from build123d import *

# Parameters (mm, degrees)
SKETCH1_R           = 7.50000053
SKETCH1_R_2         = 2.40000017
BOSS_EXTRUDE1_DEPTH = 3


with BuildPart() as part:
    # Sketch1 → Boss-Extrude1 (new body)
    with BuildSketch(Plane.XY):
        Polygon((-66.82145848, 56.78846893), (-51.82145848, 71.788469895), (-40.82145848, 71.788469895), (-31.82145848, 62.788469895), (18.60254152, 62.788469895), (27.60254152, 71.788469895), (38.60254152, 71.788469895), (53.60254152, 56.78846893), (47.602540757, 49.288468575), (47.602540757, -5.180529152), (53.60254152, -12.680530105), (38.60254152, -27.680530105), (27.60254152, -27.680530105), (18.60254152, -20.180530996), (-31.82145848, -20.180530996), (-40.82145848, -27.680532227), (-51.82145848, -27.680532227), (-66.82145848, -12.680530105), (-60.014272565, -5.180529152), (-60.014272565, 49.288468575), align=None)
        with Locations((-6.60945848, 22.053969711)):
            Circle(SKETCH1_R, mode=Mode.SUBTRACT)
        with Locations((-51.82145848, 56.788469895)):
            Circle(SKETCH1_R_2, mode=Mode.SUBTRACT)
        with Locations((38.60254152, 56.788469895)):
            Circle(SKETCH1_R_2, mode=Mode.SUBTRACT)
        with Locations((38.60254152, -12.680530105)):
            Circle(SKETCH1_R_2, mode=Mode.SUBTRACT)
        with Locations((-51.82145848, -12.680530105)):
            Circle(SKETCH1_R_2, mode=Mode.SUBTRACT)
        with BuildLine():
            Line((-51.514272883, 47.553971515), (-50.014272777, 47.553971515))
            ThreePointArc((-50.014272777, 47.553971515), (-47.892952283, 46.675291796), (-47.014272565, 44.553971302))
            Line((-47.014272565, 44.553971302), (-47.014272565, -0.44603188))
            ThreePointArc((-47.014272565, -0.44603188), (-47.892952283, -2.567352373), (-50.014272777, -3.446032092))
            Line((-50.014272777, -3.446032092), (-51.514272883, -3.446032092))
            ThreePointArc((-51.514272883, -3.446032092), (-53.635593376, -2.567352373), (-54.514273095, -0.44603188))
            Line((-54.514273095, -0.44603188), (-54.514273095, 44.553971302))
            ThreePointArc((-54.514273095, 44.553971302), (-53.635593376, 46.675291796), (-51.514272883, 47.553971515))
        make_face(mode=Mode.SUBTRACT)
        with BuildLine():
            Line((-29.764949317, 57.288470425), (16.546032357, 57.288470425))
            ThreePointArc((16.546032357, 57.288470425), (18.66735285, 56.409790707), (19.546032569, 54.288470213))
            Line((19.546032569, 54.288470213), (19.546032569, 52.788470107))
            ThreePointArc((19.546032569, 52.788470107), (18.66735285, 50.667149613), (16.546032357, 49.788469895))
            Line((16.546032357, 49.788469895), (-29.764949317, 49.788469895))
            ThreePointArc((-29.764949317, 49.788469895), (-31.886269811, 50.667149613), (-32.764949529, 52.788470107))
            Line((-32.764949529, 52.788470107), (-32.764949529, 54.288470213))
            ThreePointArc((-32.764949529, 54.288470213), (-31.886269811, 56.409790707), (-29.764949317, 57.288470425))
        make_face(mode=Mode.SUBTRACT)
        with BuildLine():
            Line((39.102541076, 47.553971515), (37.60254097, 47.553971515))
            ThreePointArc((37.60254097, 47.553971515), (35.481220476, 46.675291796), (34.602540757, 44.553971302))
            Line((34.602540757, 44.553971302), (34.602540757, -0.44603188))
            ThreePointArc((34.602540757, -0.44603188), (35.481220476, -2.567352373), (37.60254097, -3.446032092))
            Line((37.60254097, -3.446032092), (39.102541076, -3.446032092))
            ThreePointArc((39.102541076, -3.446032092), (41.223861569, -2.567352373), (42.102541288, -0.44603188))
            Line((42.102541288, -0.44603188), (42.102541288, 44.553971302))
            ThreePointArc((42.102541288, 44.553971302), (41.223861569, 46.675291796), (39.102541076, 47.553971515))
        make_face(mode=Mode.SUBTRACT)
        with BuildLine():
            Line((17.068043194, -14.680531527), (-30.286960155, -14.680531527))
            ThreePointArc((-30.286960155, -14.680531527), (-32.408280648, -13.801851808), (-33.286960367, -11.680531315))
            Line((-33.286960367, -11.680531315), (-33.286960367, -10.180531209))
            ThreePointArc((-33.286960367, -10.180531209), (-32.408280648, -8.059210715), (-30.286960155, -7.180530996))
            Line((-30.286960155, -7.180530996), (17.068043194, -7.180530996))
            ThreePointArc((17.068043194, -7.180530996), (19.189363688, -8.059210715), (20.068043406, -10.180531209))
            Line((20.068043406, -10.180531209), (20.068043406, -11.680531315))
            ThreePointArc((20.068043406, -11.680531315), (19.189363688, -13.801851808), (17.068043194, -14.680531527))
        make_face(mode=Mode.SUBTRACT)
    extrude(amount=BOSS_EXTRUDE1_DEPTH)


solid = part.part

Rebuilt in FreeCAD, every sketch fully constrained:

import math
import FreeCAD as App
import Part
import Sketcher
from FreeCAD import Vector
Q = App.Units.Quantity


def add_polygon(sketch, points):
    """Adds a closed chain of lines whose ends are joined by coincident constraints."""
    first, n = sketch.GeometryCount, len(points)
    for a, b in zip(points, points[1:] + points[:1]):
        sketch.addGeometry(Part.LineSegment(App.Vector(*a, 0), App.Vector(*b, 0)), False)
    for i in range(n):
        sketch.addConstraint(Sketcher.Constraint("Coincident", first + i, 2, first + (i + 1) % n, 1))

doc = App.newDocument("Part")
body = doc.addObject("PartDesign::Body", "Body")

sketch1 = body.newObject("Sketcher::SketchObject", "Sketch")
sketch1.AttachmentSupport = (doc.getObject("XY_Plane"), [""])
sketch1.MapMode = "FlatFace"
add_polygon(sketch1, [(-51.8, 71.8), (-66.8, 56.8), (-60, 49.3), (-60, -5.2), (-66.8, -12.7), (-51.8, -27.7), (-40.8, -27.7), (-31.8, -20.2), (18.6, -20.2), (27.6, -27.7), (38.6, -27.7), (53.6, -12.7), (47.6, -5.2), (47.6, 49.3), (53.6, 56.8), (38.6, 71.8), (27.6, 71.8), (18.6, 62.8), (-31.8, 62.8), (-40.8, 71.8)])
sketch1.addGeometry(Part.Circle(Vector(38.6, -12.7, 0), Vector(0, 0, 1), 2.4), False)
sketch1.addGeometry(Part.ArcOfCircle(Part.Circle(Vector(39.1, 44.6, 0), Vector(0, 0, 1), 3), math.radians(0), math.radians(90)), False)
sketch1.addGeometry(Part.LineSegment(Vector(42.1, 44.6, 0), Vector(42.1, -0.4, 0)), False)
sketch1.addGeometry(Part.ArcOfCircle(Part.Circle(Vector(39.1, -0.4, 0), Vector(0, 0, 1), 3), math.radians(-90), math.radians(0)), False)
sketch1.addGeometry(Part.LineSegment(Vector(39.1, -3.4, 0), Vector(37.6, -3.4, 0)), False)
sketch1.addGeometry(Part.ArcOfCircle(Part.Circle(Vector(37.6, -0.4, 0), Vector(0, 0, 1), 3), math.radians(-180), math.radians(-90)), False)
sketch1.addGeometry(Part.LineSegment(Vector(34.6, -0.4, 0), Vector(34.6, 44.6, 0)), False)
sketch1.addGeometry(Part.ArcOfCircle(Part.Circle(Vector(37.6, 44.6, 0), Vector(0, 0, 1), 3), math.radians(90), math.radians(180)), False)
sketch1.addGeometry(Part.LineSegment(Vector(37.6, 47.6, 0), Vector(39.1, 47.6, 0)), False)
sketch1.addGeometry(Part.LineSegment(Vector(17.1, -14.7, 0), Vector(-30.3, -14.7, 0)), False)
sketch1.addGeometry(Part.ArcOfCircle(Part.Circle(Vector(-30.3, -11.7, 0), Vector(0, 0, 1), 3), math.radians(-180), math.radians(-90)), False)
sketch1.addGeometry(Part.LineSegment(Vector(-33.3, -11.7, 0), Vector(-33.3, -10.2, 0)), False)
sketch1.addGeometry(Part.ArcOfCircle(Part.Circle(Vector(-30.3, -10.2, 0), Vector(0, 0, 1), 3), math.radians(90), math.radians(180)), False)
sketch1.addGeometry(Part.LineSegment(Vector(-30.3, -7.2, 0), Vector(17.1, -7.2, 0)), False)
sketch1.addGeometry(Part.ArcOfCircle(Part.Circle(Vector(17.1, -10.2, 0), Vector(0, 0, 1), 3), math.radians(0), math.radians(90)), False)
sketch1.addGeometry(Part.LineSegment(Vector(20.1, -10.2, 0), Vector(20.1, -11.7, 0)), False)
sketch1.addGeometry(Part.ArcOfCircle(Part.Circle(Vector(17.1, -11.7, 0), Vector(0, 0, 1), 3), math.radians(-90), math.radians(0)), False)
sketch1.addGeometry(Part.Circle(Vector(-51.8, -12.7, 0), Vector(0, 0, 1), 2.4), False)
sketch1.addGeometry(Part.Circle(Vector(-6.6, 22.1, 0), Vector(0, 0, 1), 7.5), False)
sketch1.addGeometry(Part.LineSegment(Vector(-51.5, 47.6, 0), Vector(-50, 47.6, 0)), False)
sketch1.addGeometry(Part.ArcOfCircle(Part.Circle(Vector(-50, 44.6, 0), Vector(0, 0, 1), 3), math.radians(0), math.radians(90)), False)
sketch1.addGeometry(Part.LineSegment(Vector(-47, 44.6, 0), Vector(-47, -0.4, 0)), False)
sketch1.addGeometry(Part.ArcOfCircle(Part.Circle(Vector(-50, -0.4, 0), Vector(0, 0, 1), 3), math.radians(-90), math.radians(0)), False)
sketch1.addGeometry(Part.LineSegment(Vector(-50, -3.4, 0), Vector(-51.5, -3.4, 0)), False)
sketch1.addGeometry(Part.ArcOfCircle(Part.Circle(Vector(-51.5, -0.4, 0), Vector(0, 0, 1), 3), math.radians(-180), math.radians(-90)), False)
sketch1.addGeometry(Part.LineSegment(Vector(-54.5, -0.4, 0), Vector(-54.5, 44.6, 0)), False)
sketch1.addGeometry(Part.ArcOfCircle(Part.Circle(Vector(-51.5, 44.6, 0), Vector(0, 0, 1), 3), math.radians(90), math.radians(180)), False)
sketch1.addGeometry(Part.Circle(Vector(38.6, 56.8, 0), Vector(0, 0, 1), 2.4), False)
sketch1.addGeometry(Part.LineSegment(Vector(-29.8, 57.3, 0), Vector(16.5, 57.3, 0)), False)
sketch1.addGeometry(Part.ArcOfCircle(Part.Circle(Vector(16.5, 54.3, 0), Vector(0, 0, 1), 3), math.radians(0), math.radians(90)), False)
sketch1.addGeometry(Part.LineSegment(Vector(19.5, 54.3, 0), Vector(19.5, 52.8, 0)), False)
sketch1.addGeometry(Part.ArcOfCircle(Part.Circle(Vector(16.5, 52.8, 0), Vector(0, 0, 1), 3), math.radians(-90), math.radians(0)), False)
sketch1.addGeometry(Part.LineSegment(Vector(16.5, 49.8, 0), Vector(-29.8, 49.8, 0)), False)
sketch1.addGeometry(Part.ArcOfCircle(Part.Circle(Vector(-29.8, 52.8, 0), Vector(0, 0, 1), 3), math.radians(180), math.radians(270)), False)
sketch1.addGeometry(Part.LineSegment(Vector(-32.8, 52.8, 0), Vector(-32.8, 54.3, 0)), False)
sketch1.addGeometry(Part.ArcOfCircle(Part.Circle(Vector(-29.8, 54.3, 0), Vector(0, 0, 1), 3), math.radians(90), math.radians(180)), False)
sketch1.addGeometry(Part.Circle(Vector(-51.8, 56.8, 0), Vector(0, 0, 1), 2.4), False)
sketch1.addConstraint(Sketcher.Constraint("Tangent", 21, 1, 22, 1))
sketch1.addConstraint(Sketcher.Constraint("Tangent", 22, 2, 23, 2))
sketch1.addConstraint(Sketcher.Constraint("Tangent", 23, 1, 24, 1))
sketch1.addConstraint(Sketcher.Constraint("Tangent", 24, 2, 25, 2))
sketch1.addConstraint(Sketcher.Constraint("Tangent", 25, 1, 26, 1))
sketch1.addConstraint(Sketcher.Constraint("Tangent", 26, 2, 27, 2))
sketch1.addConstraint(Sketcher.Constraint("Tangent", 27, 1, 28, 1))
sketch1.addConstraint(Sketcher.Constraint("Tangent", 28, 2, 21, 2))
sketch1.addConstraint(Sketcher.Constraint("Tangent", 29, 2, 30, 2))
sketch1.addConstraint(Sketcher.Constraint("Tangent", 30, 1, 31, 1))
sketch1.addConstraint(Sketcher.Constraint("Tangent", 31, 2, 32, 2))
sketch1.addConstraint(Sketcher.Constraint("Tangent", 32, 1, 33, 1))
sketch1.addConstraint(Sketcher.Constraint("Tangent", 33, 2, 34, 2))
sketch1.addConstraint(Sketcher.Constraint("Tangent", 34, 1, 35, 1))
sketch1.addConstraint(Sketcher.Constraint("Tangent", 35, 2, 36, 2))
sketch1.addConstraint(Sketcher.Constraint("Tangent", 36, 1, 29, 1))
sketch1.addConstraint(Sketcher.Constraint("Tangent", 39, 2, 40, 2))
sketch1.addConstraint(Sketcher.Constraint("Tangent", 40, 1, 41, 1))
sketch1.addConstraint(Sketcher.Constraint("Tangent", 41, 2, 42, 2))
sketch1.addConstraint(Sketcher.Constraint("Tangent", 42, 1, 43, 1))
sketch1.addConstraint(Sketcher.Constraint("Tangent", 43, 2, 44, 2))
sketch1.addConstraint(Sketcher.Constraint("Tangent", 44, 1, 45, 1))
sketch1.addConstraint(Sketcher.Constraint("Tangent", 45, 2, 46, 2))
sketch1.addConstraint(Sketcher.Constraint("Tangent", 46, 1, 39, 1))
sketch1.addConstraint(Sketcher.Constraint("Tangent", 48, 2, 49, 2))
sketch1.addConstraint(Sketcher.Constraint("Tangent", 49, 1, 50, 1))
sketch1.addConstraint(Sketcher.Constraint("Tangent", 50, 2, 51, 2))
sketch1.addConstraint(Sketcher.Constraint("Tangent", 51, 1, 52, 1))
sketch1.addConstraint(Sketcher.Constraint("Tangent", 52, 2, 53, 2))
sketch1.addConstraint(Sketcher.Constraint("Tangent", 53, 1, 54, 1))
sketch1.addConstraint(Sketcher.Constraint("Tangent", 54, 2, 55, 2))
sketch1.addConstraint(Sketcher.Constraint("Tangent", 55, 1, 48, 1))
sketch1.addConstraint(Sketcher.Constraint("Vertical", 2))
sketch1.addConstraint(Sketcher.Constraint("Horizontal", 5))
sketch1.addConstraint(Sketcher.Constraint("Horizontal", 7))
sketch1.addConstraint(Sketcher.Constraint("Horizontal", 9))
sketch1.addConstraint(Sketcher.Constraint("Vertical", 12))
sketch1.addConstraint(Sketcher.Constraint("Horizontal", 15))
sketch1.addConstraint(Sketcher.Constraint("Horizontal", 17))
sketch1.addConstraint(Sketcher.Constraint("Horizontal", 19))
sketch1.addConstraint(Sketcher.Constraint("Vertical", 22))
sketch1.addConstraint(Sketcher.Constraint("Horizontal", 24))
sketch1.addConstraint(Sketcher.Constraint("Vertical", 26))
sketch1.addConstraint(Sketcher.Constraint("Horizontal", 28))
sketch1.addConstraint(Sketcher.Constraint("Horizontal", 29))
sketch1.addConstraint(Sketcher.Constraint("Vertical", 31))
sketch1.addConstraint(Sketcher.Constraint("Horizontal", 33))
sketch1.addConstraint(Sketcher.Constraint("Vertical", 35))
sketch1.addConstraint(Sketcher.Constraint("Horizontal", 39))
sketch1.addConstraint(Sketcher.Constraint("Vertical", 41))
sketch1.addConstraint(Sketcher.Constraint("Horizontal", 43))
sketch1.addConstraint(Sketcher.Constraint("Vertical", 45))
sketch1.addConstraint(Sketcher.Constraint("Horizontal", 48))
sketch1.addConstraint(Sketcher.Constraint("Vertical", 50))
sketch1.addConstraint(Sketcher.Constraint("Horizontal", 52))
sketch1.addConstraint(Sketcher.Constraint("Vertical", 54))
sketch1.addConstraint(Sketcher.Constraint("Equal", 21, 23))
sketch1.addConstraint(Sketcher.Constraint("Equal", 23, 25))
sketch1.addConstraint(Sketcher.Constraint("Equal", 25, 27))
sketch1.addConstraint(Sketcher.Constraint("Equal", 27, 30))
sketch1.addConstraint(Sketcher.Constraint("Equal", 30, 32))
sketch1.addConstraint(Sketcher.Constraint("Equal", 32, 34))
sketch1.addConstraint(Sketcher.Constraint("Equal", 34, 36))
sketch1.addConstraint(Sketcher.Constraint("Equal", 20, 37))
sketch1.addConstraint(Sketcher.Constraint("Equal", 36, 40))
sketch1.addConstraint(Sketcher.Constraint("Equal", 40, 42))
sketch1.addConstraint(Sketcher.Constraint("Equal", 42, 44))
sketch1.addConstraint(Sketcher.Constraint("Equal", 44, 46))
sketch1.addConstraint(Sketcher.Constraint("Equal", 37, 47))
sketch1.addConstraint(Sketcher.Constraint("Equal", 46, 49))
sketch1.addConstraint(Sketcher.Constraint("Equal", 49, 51))
sketch1.addConstraint(Sketcher.Constraint("Equal", 51, 53))
sketch1.addConstraint(Sketcher.Constraint("Equal", 53, 55))
sketch1.addConstraint(Sketcher.Constraint("Equal", 47, 56))
sketch1.addConstraint(Sketcher.Constraint("Perpendicular", 0, 4))
sketch1.addConstraint(Sketcher.Constraint("Perpendicular", 4, 10))
sketch1.addConstraint(Sketcher.Constraint("Perpendicular", 10, 14))
sketch1.addConstraint(Sketcher.Constraint("Perpendicular", 14, 16))
sketch1.addConstraint(Sketcher.Constraint("Perpendicular", 16, 18))
sketch1.addConstraint(Sketcher.Constraint("Horizontal", 20, 3, 37, 3))
sketch1.addConstraint(Sketcher.Constraint("Horizontal", 27, 3, 40, 3))
sketch1.addConstraint(Sketcher.Constraint("Horizontal", 25, 3, 42, 3))
sketch1.addConstraint(Sketcher.Constraint("Horizontal", 47, 3, 56, 3))
sketch1.addConstraint(Sketcher.Constraint("Horizontal", 56, 3, 0, 2))
sketch1.addConstraint(Sketcher.Constraint("Horizontal", 37, 3, 3, 2))
sketch1.addConstraint(Sketcher.Constraint("Horizontal", 3, 2, 10, 2))
sketch1.addConstraint(Sketcher.Constraint("Horizontal", 2, 2, 11, 2))
sketch1.addConstraint(Sketcher.Constraint("Horizontal", 1, 2, 12, 2))
sketch1.addConstraint(Sketcher.Constraint("Horizontal", 0, 2, 13, 2))
sketch1.addConstraint(Sketcher.Constraint("Horizontal", 15, 2, 18, 2))
sketch1.addConstraint(Sketcher.Constraint("Vertical", 20, 3, 47, 3))
sketch1.addConstraint(Sketcher.Constraint("Vertical", 37, 3, 56, 3))
sketch1.addConstraint(Sketcher.Constraint("Vertical", 0, 2, 3, 2))
sketch1.addConstraint(Sketcher.Constraint("Vertical", 56, 3, 4, 2))
sketch1.addConstraint(Sketcher.Constraint("Vertical", 47, 3, 9, 2))
sketch1.addConstraint(Sketcher.Constraint("Vertical", 10, 2, 13, 2))
sketch1.addConstraint(Sketcher.Constraint("Vertical", 9, 2, 14, 2))
sketch1.addConstraint(Sketcher.Constraint("Vertical", 8, 2, 15, 2))
sketch1.addConstraint(Sketcher.Constraint("Vertical", 7, 2, 16, 2))
sketch1.addConstraint(Sketcher.Constraint("Vertical", 6, 2, 17, 2))
sketch1.addConstraint(Sketcher.Constraint("Vertical", 5, 2, 18, 2))
sketch1.addConstraint(Sketcher.Constraint("Vertical", 4, 2, 19, 2))
sketch1.addConstraint(Sketcher.Constraint("Equal", 5, 9))
sketch1.addConstraint(Sketcher.Constraint("Equal", 28, 39))
sketch1.addConstraint(Sketcher.Constraint("Equal", 43, 31))
sketch1.addConstraint(Sketcher.Constraint("Equal", 35, 50))
sketch1.addConstraint(Sketcher.Constraint("Equal", 1, 3))
sketch1.addConstraint(Sketcher.Constraint("Equal", 0, 4))
sketch1.addConstraint(Sketcher.Constraint("Diameter", 38, Q("15.000001 mm")))
sketch1.addConstraint(Sketcher.Constraint("Radius", 21, Q("3 mm")))
sketch1.addConstraint(Sketcher.Constraint("Diameter", 20, Q("4.8 mm")))
sketch1.addConstraint(Sketcher.Constraint("DistanceX", 5, 1, 5, 2, Q("11 mm")))
sketch1.addConstraint(Sketcher.Constraint("DistanceX", 24, 2, 24, 1, Q("1.5 mm")))
sketch1.addConstraint(Sketcher.Constraint("DistanceX", 7, 1, 7, 2, Q("50.424 mm")))
sketch1.addConstraint(Sketcher.Constraint("DistanceX", 48, 1, 48, 2, Q("46.310982 mm")))
sketch1.addConstraint(Sketcher.Constraint("DistanceX", 29, 2, 29, 1, Q("47.355003 mm")))
sketch1.addConstraint(Sketcher.Constraint("DistanceY", 2, 2, 2, 1, Q("54.468998 mm")))
sketch1.addConstraint(Sketcher.Constraint("DistanceY", 22, 2, 22, 1, Q("45.000003 mm")))
sketch1.addConstraint(Sketcher.Constraint("DistanceX", -1, 1, 20, 3, Q("38.602542 mm")))
sketch1.addConstraint(Sketcher.Constraint("DistanceY", 20, 3, -1, 1, Q("12.68053 mm")))
sketch1.addConstraint(Sketcher.Constraint("DistanceX", -1, 1, 21, 3, Q("39.102541 mm")))
sketch1.addConstraint(Sketcher.Constraint("DistanceY", -1, 1, 21, 3, Q("44.553971 mm")))
sketch1.addConstraint(Sketcher.Constraint("DistanceX", 30, 3, -1, 1, Q("30.28696 mm")))
sketch1.addConstraint(Sketcher.Constraint("DistanceY", 30, 3, -1, 1, Q("11.680531 mm")))
sketch1.addConstraint(Sketcher.Constraint("DistanceX", 37, 3, -1, 1, Q("51.821458 mm")))
sketch1.addConstraint(Sketcher.Constraint("DistanceX", 38, 3, -1, 1, Q("6.609458 mm")))
sketch1.addConstraint(Sketcher.Constraint("DistanceY", -1, 1, 38, 3, Q("22.05397 mm")))
sketch1.addConstraint(Sketcher.Constraint("DistanceY", -1, 1, 47, 3, Q("56.78847 mm")))
sketch1.addConstraint(Sketcher.Constraint("DistanceY", -1, 1, 49, 3, Q("54.28847 mm")))
sketch1.addConstraint(Sketcher.Constraint("DistanceX", 53, 3, -1, 1, Q("29.764949 mm")))
sketch1.addConstraint(Sketcher.Constraint("DistanceX", 0, 2, -1, 1, Q("66.821458 mm")))
sketch1.addConstraint(Sketcher.Constraint("DistanceY", 6, 2, -1, 1, Q("20.180531 mm")))
sketch1.addConstraint(Sketcher.Constraint("DistanceX", -1, 1, 11, 2, Q("47.602541 mm")))
sketch1.addConstraint(Sketcher.Constraint("Distance", 1, Q("10.128563 mm")))
sketch1.addConstraint(Sketcher.Constraint("DistanceX", 40, 3, -1, 1, Q("50.014273 mm")))
pad1 = body.newObject("PartDesign::Pad", "Pad")
pad1.Profile = sketch1
pad1.Length = 3

doc.recompute()
